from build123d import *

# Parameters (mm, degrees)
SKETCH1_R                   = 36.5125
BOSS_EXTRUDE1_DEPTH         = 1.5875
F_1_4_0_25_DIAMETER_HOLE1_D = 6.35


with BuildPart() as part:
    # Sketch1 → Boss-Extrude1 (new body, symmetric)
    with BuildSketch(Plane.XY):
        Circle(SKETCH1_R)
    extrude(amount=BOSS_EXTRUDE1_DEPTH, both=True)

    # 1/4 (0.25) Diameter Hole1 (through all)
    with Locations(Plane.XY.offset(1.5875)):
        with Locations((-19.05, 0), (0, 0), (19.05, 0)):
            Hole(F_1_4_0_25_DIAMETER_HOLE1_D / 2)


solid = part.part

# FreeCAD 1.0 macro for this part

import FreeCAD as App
import Part
import Sketcher
Q = App.Units.Quantity

doc = App.newDocument("Part")
body = doc.addObject("PartDesign::Body", "Body")

# Sketch on XY plane
sketch1 = body.newObject("Sketcher::SketchObject", "Sketch")
sketch1.AttachmentSupport = (doc.getObject("XY_Plane"), [""])
sketch1.MapMode = "FlatFace"
sketch1.addGeometry(Part.Circle(App.Vector(0, 0, 0), App.Vector(0, 0, 1), 37), False)
sketch1.addConstraint([
    Sketcher.Constraint("Coincident", 0, 3, -1, 1),
    Sketcher.Constraint("Diameter", 0, Q("2.875 in")),
])
pad1 = body.newObject("PartDesign::Pad", "Pad")
pad1.Profile = sketch1
pad1.Length = Q("0.125 in")
pad1.Midplane = True

# Sketch on XY plane
sketch2 = body.newObject("Sketcher::SketchObject", "Sketch001")
sketch2.AttachmentSupport = (doc.getObject("XY_Plane"), [""])
sketch2.MapMode = "FlatFace"
sketch2.AttachmentOffset = App.Placement(App.Vector(0, 0, 0.0625 * 25.4), App.Rotation())
sketch2.addGeometry([
    Part.Circle(App.Vector(-19.1, 0, 0), App.Vector(0, 0, 1), 3.2),
    Part.Circle(App.Vector(0, 0, 0), App.Vector(0, 0, 1), 3.2),
    Part.Circle(App.Vector(19.1, 0, 0), App.Vector(0, 0, 1), 3.2),
], False)
sketch2.addConstraint([
    Sketcher.Constraint("Coincident", 1, 3, -1, 1),
    Sketcher.Constraint("Equal", 0, 1),
    Sketcher.Constraint("Equal", 1, 2),
    Sketcher.Constraint("Symmetric", 0, 3, 2, 3, -1, 1),
    Sketcher.Constraint("PointOnObject", 0, 3, -1),
    Sketcher.Constraint("Diameter", 0, Q("0.25 in")),
    Sketcher.Constraint("DistanceX", 0, 3, 2, 3, Q("1.5 in")),
])
doc.recompute()
hole = body.newObject("PartDesign::Hole", "Hole")
hole.Profile = sketch2
hole.ThreadType = "None"
hole.Diameter = Q("0.25 in")
hole.DepthType = "ThroughAll"

doc.recompute()
